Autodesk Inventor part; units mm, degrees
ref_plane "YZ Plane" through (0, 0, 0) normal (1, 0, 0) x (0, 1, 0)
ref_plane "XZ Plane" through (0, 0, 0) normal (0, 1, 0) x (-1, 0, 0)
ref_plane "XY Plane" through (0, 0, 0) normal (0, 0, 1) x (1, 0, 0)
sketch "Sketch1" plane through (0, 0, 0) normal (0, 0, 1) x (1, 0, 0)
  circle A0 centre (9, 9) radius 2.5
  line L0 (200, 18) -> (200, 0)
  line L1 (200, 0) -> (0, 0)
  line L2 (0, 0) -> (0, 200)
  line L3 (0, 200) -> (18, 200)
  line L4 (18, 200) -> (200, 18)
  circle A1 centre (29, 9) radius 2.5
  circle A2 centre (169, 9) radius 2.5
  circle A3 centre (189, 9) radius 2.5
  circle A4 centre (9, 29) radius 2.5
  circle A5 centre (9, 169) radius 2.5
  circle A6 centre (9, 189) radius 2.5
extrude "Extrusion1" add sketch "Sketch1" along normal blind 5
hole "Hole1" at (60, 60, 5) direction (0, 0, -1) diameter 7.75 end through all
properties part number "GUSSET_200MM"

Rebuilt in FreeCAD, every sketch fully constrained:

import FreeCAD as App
import Part
import Sketcher
Q = App.Units.Quantity

doc = App.newDocument("Part")
body = doc.addObject("PartDesign::Body", "Body")

sketch1 = body.newObject("Sketcher::SketchObject", "Sketch")
sketch1.AttachmentSupport = (doc.getObject("XY_Plane"), [""])
sketch1.MapMode = "FlatFace"
sketch1.addGeometry([
    Part.LineSegment(App.Vector(200, 0, 0), App.Vector(200, 18, 0)),
    Part.LineSegment(App.Vector(200, 18, 0), App.Vector(18, 200, 0)),
    Part.LineSegment(App.Vector(18, 200, 0), App.Vector(0, 200, 0)),
    Part.LineSegment(App.Vector(0, 200, 0), App.Vector(0, 0, 0)),
    Part.LineSegment(App.Vector(0, 0, 0), App.Vector(200, 0, 0)),
    Part.Circle(App.Vector(9, 9, 0), App.Vector(0, 0, 1), 2.5),
    Part.Circle(App.Vector(29, 9, 0), App.Vector(0, 0, 1), 2.5),
    Part.Circle(App.Vector(9, 29, 0), App.Vector(0, 0, 1), 2.5),
    Part.Circle(App.Vector(169, 9, 0), App.Vector(0, 0, 1), 2.5),
    Part.Circle(App.Vector(189, 9, 0), App.Vector(0, 0, 1), 2.5),
    Part.Circle(App.Vector(9, 169, 0), App.Vector(0, 0, 1), 2.5),
    Part.Circle(App.Vector(9, 189, 0), App.Vector(0, 0, 1), 2.5),
], False)
sketch1.addConstraint([
    Sketcher.Constraint("Coincident", 0, 2, 1, 1),
    Sketcher.Constraint("Coincident", 1, 2, 2, 1),
    Sketcher.Constraint("Coincident", 2, 2, 3, 1),
    Sketcher.Constraint("Coincident", 3, 2, 4, 1),
    Sketcher.Constraint("Coincident", 4, 2, 0, 1),
    Sketcher.Constraint("Vertical", 0),
    Sketcher.Constraint("Horizontal", 2),
    Sketcher.Constraint("Vertical", 3),
    Sketcher.Constraint("Horizontal", 4),
    Sketcher.Constraint("Coincident", 3, 2, -1, 1),
    Sketcher.Constraint("Equal", 5, 6),
    Sketcher.Constraint("Equal", 6, 7),
    Sketcher.Constraint("Equal", 7, 8),
    Sketcher.Constraint("Equal", 8, 9),
    Sketcher.Constraint("Equal", 9, 10),
    Sketcher.Constraint("Equal", 10, 11),
    Sketcher.Constraint("Horizontal", 5, 3, 6, 3),
    Sketcher.Constraint("Horizontal", 6, 3, 8, 3),
    Sketcher.Constraint("Horizontal", 8, 3, 9, 3),
    Sketcher.Constraint("Vertical", 5, 3, 7, 3),
    Sketcher.Constraint("Vertical", 7, 3, 10, 3),
    Sketcher.Constraint("Vertical", 10, 3, 11, 3),
    Sketcher.Constraint("Equal", 2, 0),
    Sketcher.Constraint("Equal", 4, 3),
    Sketcher.Constraint("Diameter", 5, Q("5 mm")),
    Sketcher.Constraint("DistanceX", 2, 2, 2, 1, Q("18 mm")),
    Sketcher.Constraint("DistanceX", 4, 1, 4, 2, Q("200 mm")),
    Sketcher.Constraint("DistanceX", -1, 1, 5, 3, Q("9 mm")),
    Sketcher.Constraint("DistanceY", -1, 1, 5, 3, Q("9 mm")),
    Sketcher.Constraint("DistanceX", -1, 1, 6, 3, Q("29 mm")),
    Sketcher.Constraint("DistanceY", -1, 1, 7, 3, Q("29 mm")),
    Sketcher.Constraint("DistanceX", -1, 1, 8, 3, Q("169 mm")),
    Sketcher.Constraint("DistanceX", -1, 1, 9, 3, Q("189 mm")),
    Sketcher.Constraint("DistanceY", -1, 1, 10, 3, Q("169 mm")),
    Sketcher.Constraint("DistanceY", -1, 1, 11, 3, Q("189 mm")),
])
pad1 = body.newObject("PartDesign::Pad", "Pad")
pad1.Profile = sketch1
pad1.Length = 5

sketch2 = body.newObject("Sketcher::SketchObject", "Sketch001")
sketch2.AttachmentSupport = (doc.getObject("XY_Plane"), [""])
sketch2.MapMode = "FlatFace"
sketch2.AttachmentOffset = App.Placement(App.Vector(0, 0, 5), App.Rotation())
sketch2.addGeometry(Part.Circle(App.Vector(60, 60, 0), App.Vector(0, 0, 1), 3.875), False)
sketch2.addConstraint([
    Sketcher.Constraint("Diameter", 0, Q("7.75 mm")),
    Sketcher.Constraint("DistanceX", -1, 1, 0, 3, Q("60 mm")),
    Sketcher.Constraint("DistanceY", -1, 1, 0, 3, Q("60 mm")),
])
doc.recompute()
hole = body.newObject("PartDesign::Hole", "Hole")
hole.Profile = sketch2
hole.ThreadType = "None"
hole.Diameter = 7.75
hole.DepthType = "ThroughAll"

doc.recompute()
